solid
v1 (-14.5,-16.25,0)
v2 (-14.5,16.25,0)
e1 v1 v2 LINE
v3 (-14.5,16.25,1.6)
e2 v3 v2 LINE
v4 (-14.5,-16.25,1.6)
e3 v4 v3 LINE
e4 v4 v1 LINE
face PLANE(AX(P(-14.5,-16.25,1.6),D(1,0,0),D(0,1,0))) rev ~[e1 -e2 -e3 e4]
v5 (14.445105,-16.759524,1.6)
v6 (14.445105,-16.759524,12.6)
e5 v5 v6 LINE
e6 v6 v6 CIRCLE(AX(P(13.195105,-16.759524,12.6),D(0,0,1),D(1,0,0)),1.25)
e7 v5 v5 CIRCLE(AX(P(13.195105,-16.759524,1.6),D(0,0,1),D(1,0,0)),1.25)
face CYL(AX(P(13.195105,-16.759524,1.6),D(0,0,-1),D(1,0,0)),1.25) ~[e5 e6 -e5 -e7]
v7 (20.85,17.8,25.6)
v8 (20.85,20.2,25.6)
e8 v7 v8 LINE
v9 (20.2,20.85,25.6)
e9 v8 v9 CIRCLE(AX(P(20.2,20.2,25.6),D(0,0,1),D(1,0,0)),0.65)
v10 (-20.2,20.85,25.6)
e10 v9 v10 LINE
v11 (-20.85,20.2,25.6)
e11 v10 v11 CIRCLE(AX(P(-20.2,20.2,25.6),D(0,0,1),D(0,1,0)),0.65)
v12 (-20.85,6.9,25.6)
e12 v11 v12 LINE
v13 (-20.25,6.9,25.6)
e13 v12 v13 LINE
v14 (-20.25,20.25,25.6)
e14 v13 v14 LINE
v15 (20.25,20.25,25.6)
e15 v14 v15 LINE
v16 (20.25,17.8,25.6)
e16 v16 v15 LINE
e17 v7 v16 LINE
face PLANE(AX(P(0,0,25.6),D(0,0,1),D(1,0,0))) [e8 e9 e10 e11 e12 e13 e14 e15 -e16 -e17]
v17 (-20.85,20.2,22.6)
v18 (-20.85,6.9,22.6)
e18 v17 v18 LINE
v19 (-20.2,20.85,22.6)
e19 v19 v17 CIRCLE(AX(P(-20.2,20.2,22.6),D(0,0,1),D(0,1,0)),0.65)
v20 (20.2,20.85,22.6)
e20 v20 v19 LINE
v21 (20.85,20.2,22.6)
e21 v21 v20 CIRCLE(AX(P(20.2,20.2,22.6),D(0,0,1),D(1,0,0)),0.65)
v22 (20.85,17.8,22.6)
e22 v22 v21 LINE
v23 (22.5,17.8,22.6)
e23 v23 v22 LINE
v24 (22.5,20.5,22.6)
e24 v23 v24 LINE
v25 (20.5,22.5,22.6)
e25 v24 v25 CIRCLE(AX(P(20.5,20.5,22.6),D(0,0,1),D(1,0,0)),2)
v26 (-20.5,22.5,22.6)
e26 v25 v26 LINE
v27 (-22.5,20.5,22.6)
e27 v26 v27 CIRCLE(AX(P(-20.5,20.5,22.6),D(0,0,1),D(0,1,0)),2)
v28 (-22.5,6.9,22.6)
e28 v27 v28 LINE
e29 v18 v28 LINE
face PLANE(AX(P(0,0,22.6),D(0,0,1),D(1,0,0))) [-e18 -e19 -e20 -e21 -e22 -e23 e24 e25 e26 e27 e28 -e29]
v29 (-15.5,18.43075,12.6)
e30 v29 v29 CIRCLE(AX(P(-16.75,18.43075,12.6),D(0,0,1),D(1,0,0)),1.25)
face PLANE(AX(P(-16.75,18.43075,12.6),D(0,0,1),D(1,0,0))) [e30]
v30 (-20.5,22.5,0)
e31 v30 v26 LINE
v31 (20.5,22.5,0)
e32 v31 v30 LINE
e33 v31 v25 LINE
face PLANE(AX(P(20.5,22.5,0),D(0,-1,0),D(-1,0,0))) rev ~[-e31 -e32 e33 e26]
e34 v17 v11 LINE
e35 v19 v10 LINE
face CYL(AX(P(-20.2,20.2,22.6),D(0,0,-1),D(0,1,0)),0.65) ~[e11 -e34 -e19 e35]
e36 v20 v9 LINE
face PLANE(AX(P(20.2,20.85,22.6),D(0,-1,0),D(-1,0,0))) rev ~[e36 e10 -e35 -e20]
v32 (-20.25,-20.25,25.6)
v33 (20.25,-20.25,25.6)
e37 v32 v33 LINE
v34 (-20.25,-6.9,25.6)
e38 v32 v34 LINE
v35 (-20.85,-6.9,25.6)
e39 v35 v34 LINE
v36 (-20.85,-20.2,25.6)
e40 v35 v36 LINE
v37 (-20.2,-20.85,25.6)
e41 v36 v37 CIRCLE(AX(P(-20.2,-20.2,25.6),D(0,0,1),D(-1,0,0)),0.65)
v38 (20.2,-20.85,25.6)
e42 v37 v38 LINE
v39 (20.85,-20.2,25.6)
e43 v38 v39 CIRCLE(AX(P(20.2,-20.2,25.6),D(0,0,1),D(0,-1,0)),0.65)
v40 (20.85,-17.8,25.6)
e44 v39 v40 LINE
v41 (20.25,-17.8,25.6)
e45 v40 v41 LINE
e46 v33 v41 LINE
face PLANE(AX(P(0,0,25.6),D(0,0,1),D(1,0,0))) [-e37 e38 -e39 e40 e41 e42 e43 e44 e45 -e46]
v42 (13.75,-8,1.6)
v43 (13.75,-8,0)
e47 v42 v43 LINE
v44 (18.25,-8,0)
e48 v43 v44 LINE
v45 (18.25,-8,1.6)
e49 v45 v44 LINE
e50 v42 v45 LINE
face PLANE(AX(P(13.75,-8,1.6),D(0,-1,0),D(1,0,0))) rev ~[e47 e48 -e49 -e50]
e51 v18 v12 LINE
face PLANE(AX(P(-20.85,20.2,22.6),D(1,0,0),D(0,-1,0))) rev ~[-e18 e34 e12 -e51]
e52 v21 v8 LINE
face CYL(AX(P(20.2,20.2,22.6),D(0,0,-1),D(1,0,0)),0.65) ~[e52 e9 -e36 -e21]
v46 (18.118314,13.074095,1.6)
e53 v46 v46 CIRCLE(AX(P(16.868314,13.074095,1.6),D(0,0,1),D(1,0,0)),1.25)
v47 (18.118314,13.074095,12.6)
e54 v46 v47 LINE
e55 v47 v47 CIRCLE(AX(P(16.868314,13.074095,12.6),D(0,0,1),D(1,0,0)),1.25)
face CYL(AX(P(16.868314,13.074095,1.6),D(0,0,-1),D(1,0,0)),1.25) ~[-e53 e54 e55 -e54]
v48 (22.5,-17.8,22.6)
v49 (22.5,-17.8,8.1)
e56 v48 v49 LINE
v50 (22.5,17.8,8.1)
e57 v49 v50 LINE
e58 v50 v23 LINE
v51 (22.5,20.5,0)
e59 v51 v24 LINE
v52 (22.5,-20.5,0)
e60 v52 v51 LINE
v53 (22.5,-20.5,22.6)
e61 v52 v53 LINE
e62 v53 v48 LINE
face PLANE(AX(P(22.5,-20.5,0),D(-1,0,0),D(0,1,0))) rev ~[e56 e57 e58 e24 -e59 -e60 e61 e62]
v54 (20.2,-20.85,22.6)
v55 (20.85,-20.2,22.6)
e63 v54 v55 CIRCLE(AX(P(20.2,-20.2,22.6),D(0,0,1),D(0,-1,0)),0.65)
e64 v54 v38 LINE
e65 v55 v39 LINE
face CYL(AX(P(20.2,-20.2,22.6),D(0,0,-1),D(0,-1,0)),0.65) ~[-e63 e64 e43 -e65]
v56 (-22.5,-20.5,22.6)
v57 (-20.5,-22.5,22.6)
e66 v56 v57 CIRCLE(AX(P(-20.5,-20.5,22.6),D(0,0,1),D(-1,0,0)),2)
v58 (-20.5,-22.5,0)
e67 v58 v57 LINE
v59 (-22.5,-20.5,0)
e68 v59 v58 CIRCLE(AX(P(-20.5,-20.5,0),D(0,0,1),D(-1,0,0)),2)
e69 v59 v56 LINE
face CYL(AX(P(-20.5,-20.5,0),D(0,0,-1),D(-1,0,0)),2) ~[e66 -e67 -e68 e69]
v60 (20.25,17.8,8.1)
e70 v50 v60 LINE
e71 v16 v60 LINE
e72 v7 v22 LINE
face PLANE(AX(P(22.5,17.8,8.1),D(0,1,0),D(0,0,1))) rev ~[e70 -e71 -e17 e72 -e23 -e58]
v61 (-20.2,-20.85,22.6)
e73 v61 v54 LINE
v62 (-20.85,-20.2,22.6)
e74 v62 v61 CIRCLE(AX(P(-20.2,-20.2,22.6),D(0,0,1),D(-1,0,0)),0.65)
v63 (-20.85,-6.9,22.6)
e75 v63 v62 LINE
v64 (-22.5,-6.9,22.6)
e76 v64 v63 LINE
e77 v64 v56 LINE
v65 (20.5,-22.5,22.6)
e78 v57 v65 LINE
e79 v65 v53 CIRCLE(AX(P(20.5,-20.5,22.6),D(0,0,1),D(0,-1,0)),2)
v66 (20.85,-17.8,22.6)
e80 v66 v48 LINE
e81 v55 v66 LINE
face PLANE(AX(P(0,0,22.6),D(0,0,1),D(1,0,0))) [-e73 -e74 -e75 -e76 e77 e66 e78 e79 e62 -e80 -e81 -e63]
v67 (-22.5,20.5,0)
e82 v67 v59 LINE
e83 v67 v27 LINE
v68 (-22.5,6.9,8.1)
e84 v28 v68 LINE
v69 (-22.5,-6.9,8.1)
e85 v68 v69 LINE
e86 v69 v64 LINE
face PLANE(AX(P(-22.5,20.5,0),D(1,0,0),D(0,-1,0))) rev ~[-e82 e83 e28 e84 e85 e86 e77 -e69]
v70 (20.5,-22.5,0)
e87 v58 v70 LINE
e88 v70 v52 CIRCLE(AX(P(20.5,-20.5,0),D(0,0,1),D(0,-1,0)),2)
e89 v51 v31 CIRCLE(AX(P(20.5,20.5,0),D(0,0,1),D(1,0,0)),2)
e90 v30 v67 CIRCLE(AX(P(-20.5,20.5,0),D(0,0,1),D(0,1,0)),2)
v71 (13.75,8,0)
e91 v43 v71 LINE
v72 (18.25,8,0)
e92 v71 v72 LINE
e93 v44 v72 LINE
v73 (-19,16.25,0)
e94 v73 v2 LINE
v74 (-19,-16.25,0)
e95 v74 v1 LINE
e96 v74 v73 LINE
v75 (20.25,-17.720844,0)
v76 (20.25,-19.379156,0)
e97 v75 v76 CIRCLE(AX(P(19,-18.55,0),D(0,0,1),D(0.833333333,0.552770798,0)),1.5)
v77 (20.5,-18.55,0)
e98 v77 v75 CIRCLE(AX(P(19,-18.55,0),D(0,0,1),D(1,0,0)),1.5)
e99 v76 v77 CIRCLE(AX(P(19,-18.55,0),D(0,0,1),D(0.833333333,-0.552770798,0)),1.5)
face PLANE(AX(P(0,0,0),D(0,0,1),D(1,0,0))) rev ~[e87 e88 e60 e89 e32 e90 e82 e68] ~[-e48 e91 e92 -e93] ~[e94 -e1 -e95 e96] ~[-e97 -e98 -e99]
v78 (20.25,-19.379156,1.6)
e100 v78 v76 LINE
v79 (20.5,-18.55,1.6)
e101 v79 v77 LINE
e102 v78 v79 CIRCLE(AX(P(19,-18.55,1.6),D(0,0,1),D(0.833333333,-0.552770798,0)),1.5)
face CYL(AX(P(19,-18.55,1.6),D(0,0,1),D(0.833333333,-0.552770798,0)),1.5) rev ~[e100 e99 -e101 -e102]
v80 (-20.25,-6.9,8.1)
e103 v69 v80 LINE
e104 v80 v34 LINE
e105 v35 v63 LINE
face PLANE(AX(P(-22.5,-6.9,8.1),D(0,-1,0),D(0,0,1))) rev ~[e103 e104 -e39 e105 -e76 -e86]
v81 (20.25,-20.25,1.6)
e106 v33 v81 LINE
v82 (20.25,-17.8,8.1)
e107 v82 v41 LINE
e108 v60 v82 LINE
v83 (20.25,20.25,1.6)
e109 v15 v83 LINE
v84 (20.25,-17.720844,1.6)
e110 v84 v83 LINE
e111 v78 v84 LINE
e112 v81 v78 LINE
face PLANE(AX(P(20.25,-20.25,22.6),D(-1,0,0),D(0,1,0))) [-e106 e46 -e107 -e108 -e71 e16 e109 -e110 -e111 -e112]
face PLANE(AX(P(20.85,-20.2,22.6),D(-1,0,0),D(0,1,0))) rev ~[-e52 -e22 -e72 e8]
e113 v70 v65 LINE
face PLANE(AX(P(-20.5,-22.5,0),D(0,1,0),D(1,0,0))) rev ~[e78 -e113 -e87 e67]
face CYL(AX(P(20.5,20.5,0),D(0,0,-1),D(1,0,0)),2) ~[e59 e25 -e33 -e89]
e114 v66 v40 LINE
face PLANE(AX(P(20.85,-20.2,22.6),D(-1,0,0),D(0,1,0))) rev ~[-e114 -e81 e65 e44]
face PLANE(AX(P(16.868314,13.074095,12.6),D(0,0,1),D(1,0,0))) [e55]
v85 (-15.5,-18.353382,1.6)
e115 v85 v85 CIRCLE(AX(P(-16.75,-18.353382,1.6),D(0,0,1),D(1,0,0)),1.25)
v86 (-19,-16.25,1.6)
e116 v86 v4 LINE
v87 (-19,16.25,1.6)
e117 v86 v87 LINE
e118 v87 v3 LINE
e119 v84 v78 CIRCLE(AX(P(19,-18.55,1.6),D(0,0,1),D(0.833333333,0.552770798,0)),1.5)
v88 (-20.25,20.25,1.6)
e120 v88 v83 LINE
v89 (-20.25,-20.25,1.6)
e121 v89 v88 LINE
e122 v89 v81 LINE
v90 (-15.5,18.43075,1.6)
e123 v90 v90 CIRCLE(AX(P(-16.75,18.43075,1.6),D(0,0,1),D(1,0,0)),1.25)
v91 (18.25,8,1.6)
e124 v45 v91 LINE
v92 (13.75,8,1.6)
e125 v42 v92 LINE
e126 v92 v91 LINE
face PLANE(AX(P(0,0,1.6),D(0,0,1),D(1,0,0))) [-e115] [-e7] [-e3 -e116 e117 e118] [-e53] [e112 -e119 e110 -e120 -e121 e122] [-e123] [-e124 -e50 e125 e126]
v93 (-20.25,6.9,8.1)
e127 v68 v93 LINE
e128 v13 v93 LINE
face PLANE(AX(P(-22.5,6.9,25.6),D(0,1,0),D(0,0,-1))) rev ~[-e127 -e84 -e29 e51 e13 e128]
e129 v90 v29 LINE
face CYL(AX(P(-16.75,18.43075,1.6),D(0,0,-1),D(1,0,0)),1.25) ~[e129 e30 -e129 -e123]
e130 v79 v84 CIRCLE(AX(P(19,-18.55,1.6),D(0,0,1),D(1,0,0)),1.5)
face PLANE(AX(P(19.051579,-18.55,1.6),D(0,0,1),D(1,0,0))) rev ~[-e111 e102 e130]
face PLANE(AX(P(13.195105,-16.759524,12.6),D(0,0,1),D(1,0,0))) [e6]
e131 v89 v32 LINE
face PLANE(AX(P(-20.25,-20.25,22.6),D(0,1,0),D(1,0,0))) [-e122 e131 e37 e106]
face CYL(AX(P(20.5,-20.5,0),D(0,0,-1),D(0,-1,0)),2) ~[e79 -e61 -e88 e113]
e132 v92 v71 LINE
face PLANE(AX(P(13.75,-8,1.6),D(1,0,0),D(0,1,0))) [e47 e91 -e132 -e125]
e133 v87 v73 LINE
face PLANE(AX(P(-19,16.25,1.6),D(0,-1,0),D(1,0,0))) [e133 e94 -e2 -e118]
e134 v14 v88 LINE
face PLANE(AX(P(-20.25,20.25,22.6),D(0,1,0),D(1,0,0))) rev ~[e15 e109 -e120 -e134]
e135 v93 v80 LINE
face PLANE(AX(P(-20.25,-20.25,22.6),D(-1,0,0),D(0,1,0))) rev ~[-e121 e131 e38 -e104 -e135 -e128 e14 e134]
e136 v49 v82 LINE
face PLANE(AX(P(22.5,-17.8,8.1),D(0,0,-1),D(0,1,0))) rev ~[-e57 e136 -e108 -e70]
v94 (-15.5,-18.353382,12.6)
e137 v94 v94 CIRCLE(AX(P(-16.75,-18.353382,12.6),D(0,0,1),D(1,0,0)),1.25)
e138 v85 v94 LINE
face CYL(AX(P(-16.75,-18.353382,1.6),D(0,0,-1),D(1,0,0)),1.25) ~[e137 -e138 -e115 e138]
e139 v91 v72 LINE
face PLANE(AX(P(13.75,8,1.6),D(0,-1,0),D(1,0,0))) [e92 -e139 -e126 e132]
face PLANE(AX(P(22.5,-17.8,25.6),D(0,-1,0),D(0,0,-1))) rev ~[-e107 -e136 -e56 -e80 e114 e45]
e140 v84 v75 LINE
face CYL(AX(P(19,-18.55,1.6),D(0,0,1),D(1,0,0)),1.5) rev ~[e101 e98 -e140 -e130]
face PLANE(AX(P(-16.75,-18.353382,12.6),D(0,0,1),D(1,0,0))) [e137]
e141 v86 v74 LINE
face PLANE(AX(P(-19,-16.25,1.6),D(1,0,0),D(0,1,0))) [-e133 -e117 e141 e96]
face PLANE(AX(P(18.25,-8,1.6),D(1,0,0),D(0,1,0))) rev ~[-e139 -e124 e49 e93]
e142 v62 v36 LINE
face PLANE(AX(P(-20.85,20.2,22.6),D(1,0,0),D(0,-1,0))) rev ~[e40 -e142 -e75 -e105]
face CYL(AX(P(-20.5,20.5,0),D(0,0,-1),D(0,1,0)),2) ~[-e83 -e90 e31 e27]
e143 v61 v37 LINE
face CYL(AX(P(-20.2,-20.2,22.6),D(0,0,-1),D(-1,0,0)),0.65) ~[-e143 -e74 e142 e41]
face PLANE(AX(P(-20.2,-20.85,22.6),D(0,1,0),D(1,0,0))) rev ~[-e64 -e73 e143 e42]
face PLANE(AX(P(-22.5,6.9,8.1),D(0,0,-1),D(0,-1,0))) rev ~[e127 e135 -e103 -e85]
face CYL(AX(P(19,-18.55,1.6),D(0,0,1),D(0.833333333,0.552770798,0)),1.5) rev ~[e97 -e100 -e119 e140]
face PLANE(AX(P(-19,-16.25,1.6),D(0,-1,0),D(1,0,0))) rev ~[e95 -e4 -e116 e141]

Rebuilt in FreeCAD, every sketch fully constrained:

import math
import FreeCAD as App
import Part
import Sketcher

V = App.Vector


def add_polygon(sketch, points):
    """Adds a closed chain of lines whose ends are joined by coincident constraints."""
    first, n = sketch.GeometryCount, len(points)
    for a, b in zip(points, points[1:] + points[:1]):
        sketch.addGeometry(Part.LineSegment(App.Vector(*a, 0), App.Vector(*b, 0)), False)
    for i in range(n):
        sketch.addConstraint(Sketcher.Constraint("Coincident", first + i, 2, first + (i + 1) % n, 1))

doc = App.newDocument("Part")
body = doc.addObject("PartDesign::Body", "Body")

# Sketch on XY plane
sketch1 = body.newObject("Sketcher::SketchObject", "Sketch")
sketch1.AttachmentSupport = (doc.getObject("XY_Plane"), [""])
sketch1.MapMode = "FlatFace"
add_polygon(sketch1, [(-20, 20), (-20, -20), (20, -20), (20, 20)])  # lines 0-3
sketch1.addConstraint([
    Sketcher.Constraint("Vertical", 0),
    Sketcher.Constraint("Horizontal", 1),
    Sketcher.Constraint("Vertical", 2),
    Sketcher.Constraint("Horizontal", 3),
    Sketcher.Constraint("Symmetric", 0, 2, 2, 2, -1, 1),
    Sketcher.Constraint("Equal", 3, 0),
    Sketcher.Constraint("DistanceX", 1, 1, 1, 2, 40.5),
])
pad1 = body.newObject("PartDesign::Pad", "Pad")
pad1.Profile = sketch1
pad1.Length = 1.6

# Sketch on XY plane
sketch2 = body.newObject("Sketcher::SketchObject", "Sketch001")
sketch2.AttachmentSupport = (doc.getObject("XY_Plane"), [""])
sketch2.MapMode = "FlatFace"
sketch2.addGeometry(Part.LineSegment(V(20.5, 22.5, 0), V(-20.5, 22.5, 0)), False)  # 0
sketch2.addGeometry(Part.ArcOfCircle(Part.Circle(V(-20.5, 20.5, 0), V(0, 0, 1), 2), math.radians(90), math.radians(180)), False)  # 1
sketch2.addGeometry(Part.LineSegment(V(-22.5, 20.5, 0), V(-22.5, -20.5, 0)), False)  # 2
sketch2.addGeometry(Part.ArcOfCircle(Part.Circle(V(-20.5, -20.5, 0), V(0, 0, 1), 2), math.radians(180), math.radians(270)), False)  # 3
sketch2.addGeometry(Part.LineSegment(V(-20.5, -22.5, 0), V(20.5, -22.5, 0)), False)  # 4
sketch2.addGeometry(Part.ArcOfCircle(Part.Circle(V(20.5, -20.5, 0), V(0, 0, 1), 2), math.radians(-90), math.radians(0)), False)  # 5
sketch2.addGeometry(Part.LineSegment(V(22.5, -20.5, 0), V(22.5, 20.5, 0)), False)  # 6
sketch2.addGeometry(Part.ArcOfCircle(Part.Circle(V(20.5, 20.5, 0), V(0, 0, 1), 2), math.radians(0), math.radians(90)), False)  # 7
add_polygon(sketch2, [(20.2, -20.2), (-20.2, -20.2), (-20.2, 20.2), (20.2, 20.2)])  # lines 8-11
sketch2.addConstraint([
    Sketcher.Constraint("Tangent", 0, 2, 1, 1),
    Sketcher.Constraint("Tangent", 1, 2, 2, 1),
    Sketcher.Constraint("Tangent", 2, 2, 3, 1),
    Sketcher.Constraint("Tangent", 3, 2, 4, 1),
    Sketcher.Constraint("Tangent", 4, 2, 5, 1),
    Sketcher.Constraint("Tangent", 5, 2, 6, 1),
    Sketcher.Constraint("Tangent", 6, 2, 7, 1),
    Sketcher.Constraint("Tangent", 7, 2, 0, 1),
    Sketcher.Constraint("Horizontal", 0),
    Sketcher.Constraint("Vertical", 2),
    Sketcher.Constraint("Horizontal", 4),
    Sketcher.Constraint("Vertical", 6),
    Sketcher.Constraint("Horizontal", 8),
    Sketcher.Constraint("Vertical", 9),
    Sketcher.Constraint("Horizontal", 10),
    Sketcher.Constraint("Vertical", 11),
    Sketcher.Constraint("Equal", 1, 3),
    Sketcher.Constraint("Equal", 3, 5),
    Sketcher.Constraint("Equal", 5, 7),
    Sketcher.Constraint("Symmetric", 1, 3, 5, 3, -1, 1),
    Sketcher.Constraint("Symmetric", 8, 2, 10, 2, -1, 1),
    Sketcher.Constraint("Equal", 4, 2),
    Sketcher.Constraint("Equal", 10, 9),
    Sketcher.Constraint("Radius", 1, 2.0),
    Sketcher.Constraint("DistanceX", 0, 2, 0, 1, 41.0),
    Sketcher.Constraint("DistanceX", 8, 2, 8, 1, 40.5),
])
pad2 = body.newObject("PartDesign::Pad", "Pad001")
pad2.Profile = sketch2
pad2.Length = 22.6

# Sketch on XY plane
sketch3 = body.newObject("Sketcher::SketchObject", "Sketch002")
sketch3.AttachmentSupport = (doc.getObject("XY_Plane"), [""])
sketch3.MapMode = "FlatFace"
sketch3.AttachmentOffset = App.Placement(V(0, 0, 22.6), App.Rotation())
sketch3.addGeometry(Part.LineSegment(V(20.2, 20.9, 0), V(-20.2, 20.9, 0)), False)  # 0
sketch3.addGeometry(Part.ArcOfCircle(Part.Circle(V(-20.2, 20.2, 0), V(0, 0, 1), 0.7), math.radians(90), math.radians(180)), False)  # 1
sketch3.addGeometry(Part.LineSegment(V(-20.9, 20.2, 0), V(-20.9, -20.2, 0)), False)  # 2
sketch3.addGeometry(Part.ArcOfCircle(Part.Circle(V(-20.2, -20.2, 0), V(0, 0, 1), 0.7), math.radians(180), math.radians(270)), False)  # 3
sketch3.addGeometry(Part.LineSegment(V(-20.2, -20.9, 0), V(20.2, -20.9, 0)), False)  # 4
sketch3.addGeometry(Part.ArcOfCircle(Part.Circle(V(20.2, -20.2, 0), V(0, 0, 1), 0.7), math.radians(-90), math.radians(0)), False)  # 5
sketch3.addGeometry(Part.LineSegment(V(20.9, -20.2, 0), V(20.9, 20.2, 0)), False)  # 6
sketch3.addGeometry(Part.ArcOfCircle(Part.Circle(V(20.2, 20.2, 0), V(0, 0, 1), 0.7), math.radians(0), math.radians(90)), False)  # 7
add_polygon(sketch3, [(20.2, -20.2), (-20.2, -20.2), (-20.2, 20.2), (20.2, 20.2)])  # lines 8-11
sketch3.addConstraint([
    Sketcher.Constraint("Tangent", 0, 2, 1, 1),
    Sketcher.Constraint("Tangent", 1, 2, 2, 1),
    Sketcher.Constraint("Tangent", 2, 2, 3, 1),
    Sketcher.Constraint("Tangent", 3, 2, 4, 1),
    Sketcher.Constraint("Tangent", 4, 2, 5, 1),
    Sketcher.Constraint("Tangent", 5, 2, 6, 1),
    Sketcher.Constraint("Tangent", 6, 2, 7, 1),
    Sketcher.Constraint("Tangent", 7, 2, 0, 1),
    Sketcher.Constraint("Horizontal", 0),
    Sketcher.Constraint("Vertical", 2),
    Sketcher.Constraint("Horizontal", 4),
    Sketcher.Constraint("Vertical", 6),
    Sketcher.Constraint("Horizontal", 8),
    Sketcher.Constraint("Vertical", 9),
    Sketcher.Constraint("Horizontal", 10),
    Sketcher.Constraint("Vertical", 11),
    Sketcher.Constraint("Equal", 1, 3),
    Sketcher.Constraint("Equal", 3, 5),
    Sketcher.Constraint("Equal", 5, 7),
    Sketcher.Constraint("Symmetric", 1, 3, 5, 3, -1, 1),
    Sketcher.Constraint("Symmetric", 8, 2, 10, 2, -1, 1),
    Sketcher.Constraint("Equal", 4, 2),
    Sketcher.Constraint("Equal", 10, 9),
    Sketcher.Constraint("Radius", 1, 0.65),
    Sketcher.Constraint("DistanceX", 0, 2, 0, 1, 40.4),
    Sketcher.Constraint("DistanceX", 8, 2, 8, 1, 40.5),
])
pad3 = body.newObject("PartDesign::Pad", "Pad002")
pad3.Profile = sketch3
pad3.Length = 3

# Sketch on YZ plane
sketch4 = body.newObject("Sketcher::SketchObject", "Sketch003")
sketch4.AttachmentSupport = (doc.getObject("YZ_Plane"), [""])
sketch4.MapMode = "FlatFace"
sketch4.AttachmentOffset = App.Placement(V(0, 0, 22.5), App.Rotation())
add_polygon(sketch4, [(-18, 8), (18, 8), (18, 26), (-18, 26)])  # lines 0-3
sketch4.addConstraint([
    Sketcher.Constraint("Horizontal", 0),
    Sketcher.Constraint("Vertical", 1),
    Sketcher.Constraint("Horizontal", 2),
    Sketcher.Constraint("Vertical", 3),
    Sketcher.Constraint("DistanceX", 0, 1, 0, 2, 35.6),
    Sketcher.Constraint("DistanceY", 1, 1, 1, 2, 17.5),
    Sketcher.Constraint("DistanceX", -1, 1, 0, 2, 17.8),
    Sketcher.Constraint("DistanceY", -1, 1, 0, 2, 8.1),
])
pocket1 = body.newObject("PartDesign::Pocket", "Pocket")
pocket1.Profile = sketch4
pocket1.Length = 5

# Sketch on YZ plane
sketch5 = body.newObject("Sketcher::SketchObject", "Sketch004")
sketch5.AttachmentSupport = (doc.getObject("YZ_Plane"), [""])
sketch5.MapMode = "FlatFace"
sketch5.AttachmentOffset = App.Placement(V(0, 0, -22.5), App.Rotation())
add_polygon(sketch5, [(7, 8), (-7, 8), (-7, 26), (7, 26)])  # lines 0-3
sketch5.addConstraint([
    Sketcher.Constraint("Horizontal", 0),
    Sketcher.Constraint("Vertical", 1),
    Sketcher.Constraint("Horizontal", 2),
    Sketcher.Constraint("Vertical", 3),
    Sketcher.Constraint("DistanceX", 0, 2, 0, 1, 13.8),
    Sketcher.Constraint("DistanceY", 1, 1, 1, 2, 17.5),
    Sketcher.Constraint("DistanceX", 0, 2, -1, 1, 6.9),
    Sketcher.Constraint("DistanceY", -1, 1, 0, 2, 8.1),
])
pocket2 = body.newObject("PartDesign::Pocket", "Pocket001")
pocket2.Profile = sketch5
pocket2.Length = 5
pocket2.Reversed = True

# Sketch on XY plane
sketch6 = body.newObject("Sketcher::SketchObject", "Sketch005")
sketch6.AttachmentSupport = (doc.getObject("XY_Plane"), [""])
sketch6.MapMode = "FlatFace"
sketch6.AttachmentOffset = App.Placement(V(0, 0, 1.6), App.Rotation())
add_polygon(sketch6, [(13.8, 8), (13.8, -8), (18.2, -8), (18.2, 8)])  # lines 0-3
sketch6.addGeometry(Part.ArcOfCircle(Part.Circle(V(19, -18.6, 0), V(0, 0, 1), 1.5), math.radians(34), math.radians(326)), False)  # 4
sketch6.addGeometry(Part.ArcOfCircle(Part.Circle(V(19, -18.6, 0), V(0, 0, 1), 1.5), math.radians(-34), math.radians(0)), False)  # 5
sketch6.addGeometry(Part.ArcOfCircle(Part.Circle(V(19, -18.6, 0), V(0, 0, 1), 1.5), math.radians(0), math.radians(34)), False)  # 6
add_polygon(sketch6, [(-19, 16.2), (-19, -16.2), (-14.5, -16.2), (-14.5, 16.2)])  # lines 7-10
sketch6.addConstraint([
    Sketcher.Constraint("Tangent", 4, 2, 5, 1),
    Sketcher.Constraint("Tangent", 5, 2, 6, 1),
    Sketcher.Constraint("Tangent", 6, 2, 4, 1),
    Sketcher.Constraint("Vertical", 0),
    Sketcher.Constraint("Horizontal", 1),
    Sketcher.Constraint("Vertical", 2),
    Sketcher.Constraint("Horizontal", 3),
    Sketcher.Constraint("Vertical", 7),
    Sketcher.Constraint("Horizontal", 8),
    Sketcher.Constraint("Vertical", 9),
    Sketcher.Constraint("Horizontal", 10),
    Sketcher.Constraint("Horizontal", 6, 3, 5, 2),
    Sketcher.Constraint("Vertical", 4, 2, 6, 2),
    Sketcher.Constraint("Equal", 3, 8),
    Sketcher.Constraint("Radius", 4, 1.5),
    Sketcher.Constraint("DistanceY", 0, 2, 0, 1, 16.0),
    Sketcher.Constraint("DistanceX", 1, 1, 1, 2, 4.5),
    Sketcher.Constraint("DistanceY", 7, 2, 7, 1, 32.5),
    Sketcher.Constraint("DistanceX", -1, 1, 4, 3, 19.0),
    Sketcher.Constraint("DistanceY", 0, 2, -1, 1, 8.0),
    Sketcher.Constraint("DistanceX", 7, 2, -1, 1, 19.0),
    Sketcher.Constraint("DistanceX", 1, 2, 4, 2, 2.0),
    Sketcher.Constraint("DistanceY", 5, 3, 7, 2, 2.3),
    Sketcher.Constraint("DistanceY", 4, 3, -1, 1, 18.55),
    Sketcher.Constraint("DistanceX", -1, 1, 0, 2, 13.75),
])
pocket3 = body.newObject("PartDesign::Pocket", "Pocket002")
pocket3.Profile = sketch6
pocket3.Length = 5

# Sketch on XY plane
sketch7 = body.newObject("Sketcher::SketchObject", "Sketch006")
sketch7.AttachmentSupport = (doc.getObject("XY_Plane"), [""])
sketch7.MapMode = "FlatFace"
sketch7.AttachmentOffset = App.Placement(V(0, 0, 1.6), App.Rotation())
sketch7.addGeometry([
    Part.Circle(V(16.9, 13.1, 0), V(0, 0, 1), 1.2),
    Part.Circle(V(-16.8, 18.4, 0), V(0, 0, 1), 1.2),
    Part.Circle(V(-16.8, -18.4, 0), V(0, 0, 1), 1.2),
    Part.Circle(V(13.2, -16.8, 0), V(0, 0, 1), 1.2),
], False)
sketch7.addConstraint([
    Sketcher.Constraint("Equal", 0, 1),
    Sketcher.Constraint("Equal", 1, 2),
    Sketcher.Constraint("Equal", 2, 3),
    Sketcher.Constraint("Vertical", 1, 3, 2, 3),
    Sketcher.Constraint("Diameter", 0, 2.5),
    Sketcher.Constraint("DistanceX", 1, 3, -1, 1, 16.75),
    Sketcher.Constraint("DistanceY", -1, 1, 1, 3, 18.43075),
    Sketcher.Constraint("DistanceY", 2, 3, -1, 1, 18.353382),
    Sketcher.Constraint("DistanceX", 3, 3, 0, 3, 3.673209),
    Sketcher.Constraint("DistanceY", 3, 3, 0, 3, 29.833619),
    Sketcher.Constraint("DistanceX", -1, 1, 0, 3, 16.868314),
    Sketcher.Constraint("DistanceY", -1, 1, 0, 3, 13.074095),
])
pad4 = body.newObject("PartDesign::Pad", "Pad003")
pad4.Profile = sketch7
pad4.Length = 11

doc.recompute()
